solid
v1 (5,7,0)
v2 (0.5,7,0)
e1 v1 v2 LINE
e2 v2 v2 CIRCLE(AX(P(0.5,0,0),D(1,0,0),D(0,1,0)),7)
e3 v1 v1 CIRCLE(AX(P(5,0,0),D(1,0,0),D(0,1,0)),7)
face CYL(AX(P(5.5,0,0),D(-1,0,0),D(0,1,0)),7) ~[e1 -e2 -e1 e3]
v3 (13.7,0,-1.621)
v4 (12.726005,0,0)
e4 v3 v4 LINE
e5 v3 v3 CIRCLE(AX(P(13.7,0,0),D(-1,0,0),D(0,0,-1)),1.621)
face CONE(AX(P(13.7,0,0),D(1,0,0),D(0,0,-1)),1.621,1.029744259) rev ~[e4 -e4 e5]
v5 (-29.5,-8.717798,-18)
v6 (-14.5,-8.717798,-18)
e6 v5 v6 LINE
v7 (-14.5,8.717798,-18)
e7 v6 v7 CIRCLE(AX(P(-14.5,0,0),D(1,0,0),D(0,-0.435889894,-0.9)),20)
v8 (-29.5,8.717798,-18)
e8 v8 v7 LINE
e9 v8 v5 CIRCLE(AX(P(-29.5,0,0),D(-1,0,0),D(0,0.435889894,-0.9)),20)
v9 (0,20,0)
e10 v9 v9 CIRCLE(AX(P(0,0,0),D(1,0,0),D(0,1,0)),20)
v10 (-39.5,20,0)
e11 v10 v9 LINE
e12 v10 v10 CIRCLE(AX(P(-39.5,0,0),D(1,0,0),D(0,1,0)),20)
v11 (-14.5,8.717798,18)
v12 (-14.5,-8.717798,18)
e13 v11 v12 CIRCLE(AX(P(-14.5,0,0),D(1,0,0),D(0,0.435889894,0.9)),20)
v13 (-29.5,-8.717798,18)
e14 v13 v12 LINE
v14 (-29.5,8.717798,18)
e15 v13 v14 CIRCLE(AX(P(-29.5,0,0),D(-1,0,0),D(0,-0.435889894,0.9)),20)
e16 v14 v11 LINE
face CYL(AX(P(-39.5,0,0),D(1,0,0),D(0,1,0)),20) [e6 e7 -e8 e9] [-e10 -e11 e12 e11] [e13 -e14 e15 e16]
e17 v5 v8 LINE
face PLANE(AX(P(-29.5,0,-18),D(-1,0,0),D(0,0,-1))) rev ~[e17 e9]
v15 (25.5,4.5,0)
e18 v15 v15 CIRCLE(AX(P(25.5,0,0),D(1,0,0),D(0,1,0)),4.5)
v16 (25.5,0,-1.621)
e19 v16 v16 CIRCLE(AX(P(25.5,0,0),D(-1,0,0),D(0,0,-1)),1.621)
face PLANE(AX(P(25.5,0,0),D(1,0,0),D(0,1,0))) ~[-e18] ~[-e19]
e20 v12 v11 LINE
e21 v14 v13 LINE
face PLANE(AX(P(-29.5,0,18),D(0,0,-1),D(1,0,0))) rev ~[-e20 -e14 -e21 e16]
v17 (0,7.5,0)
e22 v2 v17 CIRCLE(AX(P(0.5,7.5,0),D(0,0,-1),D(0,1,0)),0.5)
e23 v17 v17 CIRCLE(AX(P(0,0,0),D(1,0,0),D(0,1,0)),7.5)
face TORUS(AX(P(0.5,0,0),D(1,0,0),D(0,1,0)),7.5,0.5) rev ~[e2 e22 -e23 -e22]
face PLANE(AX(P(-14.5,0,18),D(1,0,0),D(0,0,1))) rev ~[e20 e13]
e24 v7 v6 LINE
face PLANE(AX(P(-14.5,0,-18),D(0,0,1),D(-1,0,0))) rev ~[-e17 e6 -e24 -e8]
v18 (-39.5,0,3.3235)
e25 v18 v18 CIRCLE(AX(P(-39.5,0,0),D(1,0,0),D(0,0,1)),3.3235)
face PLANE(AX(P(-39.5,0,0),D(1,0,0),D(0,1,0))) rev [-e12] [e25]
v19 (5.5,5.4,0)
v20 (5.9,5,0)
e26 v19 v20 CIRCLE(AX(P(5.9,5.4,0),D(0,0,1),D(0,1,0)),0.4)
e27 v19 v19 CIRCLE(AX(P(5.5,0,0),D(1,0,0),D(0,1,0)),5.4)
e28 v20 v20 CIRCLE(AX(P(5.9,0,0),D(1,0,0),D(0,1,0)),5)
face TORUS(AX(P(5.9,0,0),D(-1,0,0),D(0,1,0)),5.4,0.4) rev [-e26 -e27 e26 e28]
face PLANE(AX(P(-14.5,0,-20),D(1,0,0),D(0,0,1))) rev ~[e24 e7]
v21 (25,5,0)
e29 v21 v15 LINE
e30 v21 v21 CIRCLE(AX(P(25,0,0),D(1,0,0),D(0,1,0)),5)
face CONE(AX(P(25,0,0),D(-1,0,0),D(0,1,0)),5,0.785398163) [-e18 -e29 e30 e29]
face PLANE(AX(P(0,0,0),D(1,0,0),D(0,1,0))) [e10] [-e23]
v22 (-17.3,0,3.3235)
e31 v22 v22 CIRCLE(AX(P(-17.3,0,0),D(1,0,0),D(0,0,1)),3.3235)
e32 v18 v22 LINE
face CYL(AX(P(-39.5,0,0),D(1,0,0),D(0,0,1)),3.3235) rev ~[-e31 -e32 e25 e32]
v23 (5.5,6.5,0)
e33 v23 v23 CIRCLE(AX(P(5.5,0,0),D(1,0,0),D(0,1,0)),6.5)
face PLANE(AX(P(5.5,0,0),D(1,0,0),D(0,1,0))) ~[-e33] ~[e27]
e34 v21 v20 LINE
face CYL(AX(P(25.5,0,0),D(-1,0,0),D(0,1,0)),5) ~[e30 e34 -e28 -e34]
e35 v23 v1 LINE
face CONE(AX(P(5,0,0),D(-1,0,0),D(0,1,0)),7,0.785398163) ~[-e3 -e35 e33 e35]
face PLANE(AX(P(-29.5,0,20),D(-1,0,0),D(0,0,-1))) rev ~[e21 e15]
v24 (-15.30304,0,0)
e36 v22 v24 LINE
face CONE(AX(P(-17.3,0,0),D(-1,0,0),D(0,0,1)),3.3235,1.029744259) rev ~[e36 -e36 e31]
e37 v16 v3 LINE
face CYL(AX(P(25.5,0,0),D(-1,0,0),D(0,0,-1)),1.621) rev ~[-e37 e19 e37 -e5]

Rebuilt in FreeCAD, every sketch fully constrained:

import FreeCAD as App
import Part
import Sketcher
from FreeCAD import Vector


def edges_at(feature, points):
    """Names of the edges that pass closest to the given points."""
    edges = feature.Shape.Edges
    near = lambda p: min(range(len(edges)), key=lambda i: edges[i].distToShape(Part.Vertex(*p))[0])
    return sorted({f"Edge{near(p) + 1}" for p in points})


def add_polygon(sketch, points):
    """Adds a closed chain of lines whose ends are joined by coincident constraints."""
    first, n = sketch.GeometryCount, len(points)
    for a, b in zip(points, points[1:] + points[:1]):
        sketch.addGeometry(Part.LineSegment(App.Vector(*a, 0), App.Vector(*b, 0)), False)
    for i in range(n):
        sketch.addConstraint(Sketcher.Constraint("Coincident", first + i, 2, first + (i + 1) % n, 1))

doc = App.newDocument("Part")
body = doc.addObject("PartDesign::Body", "Body")

# Sketch on XY plane
sketch1 = body.newObject("Sketcher::SketchObject", "Sketch")
sketch1.AttachmentSupport = (doc.getObject("XY_Plane"), [""])
sketch1.MapMode = "FlatFace"
add_polygon(sketch1, [(5.5, 7), (0, 7), (0, 20), (-39.5, 20), (-39.5, 0), (25.5, 0), (25.5, 5), (5.5, 5)])  # lines 0-7
sketch1.addConstraint(Sketcher.Constraint("Horizontal", 0))
sketch1.addConstraint(Sketcher.Constraint("Vertical", 1))
sketch1.addConstraint(Sketcher.Constraint("Horizontal", 2))
sketch1.addConstraint(Sketcher.Constraint("Vertical", 3))
sketch1.addConstraint(Sketcher.Constraint("Horizontal", 4))
sketch1.addConstraint(Sketcher.Constraint("Vertical", 5))
sketch1.addConstraint(Sketcher.Constraint("Horizontal", 6))
sketch1.addConstraint(Sketcher.Constraint("Vertical", 7))
sketch1.addConstraint(Sketcher.Constraint("PointOnObject", 0, 2, -2))
sketch1.addConstraint(Sketcher.Constraint("PointOnObject", 3, 2, -1))
sketch1.addConstraint(Sketcher.Constraint("Equal", 6, 3))
sketch1.addConstraint(Sketcher.Constraint("DistanceX", 6, 2, 6, 1, 20.0))
sketch1.addConstraint(Sketcher.Constraint("DistanceY", 5, 1, 5, 2, 5.0))
sketch1.addConstraint(Sketcher.Constraint("DistanceX", 0, 2, 0, 1, 5.5))
sketch1.addConstraint(Sketcher.Constraint("DistanceX", 2, 2, 2, 1, 39.5))
sketch1.addConstraint(Sketcher.Constraint("DistanceY", -1, 1, 0, 2, 7.0))
revolution = body.newObject("PartDesign::Revolution", "Revolution")
revolution.Profile = sketch1
revolution.ReferenceAxis = (sketch1, ["H_Axis"])
revolution.Angle = 360

# Sketch on YZ plane
sketch2 = body.newObject("Sketcher::SketchObject", "Sketch001")
sketch2.AttachmentSupport = (doc.getObject("YZ_Plane"), [""])
sketch2.MapMode = "FlatFace"
sketch2.AttachmentOffset = App.Placement(Vector(0, 0, 25.5), App.Rotation())
sketch2.addGeometry(Part.Circle(Vector(0, 0, 0), Vector(0, 0, 1), 1.6), False)
sketch2.addConstraint(Sketcher.Constraint("Coincident", 0, 3, -1, 1))
sketch2.addConstraint(Sketcher.Constraint("Diameter", 0, 3.242))
doc.recompute()
hole = body.newObject("PartDesign::Hole", "Hole")
hole.Profile = sketch2
hole.ThreadType = "None"
hole.Diameter = 3.242
hole.DepthType = "Dimension"
hole.Depth = 11.8
hole.DrillPoint = "Angled"
hole.DrillPointAngle = 118

# Sketch on YZ plane
sketch3 = body.newObject("Sketcher::SketchObject", "Sketch002")
sketch3.AttachmentSupport = (doc.getObject("YZ_Plane"), [""])
sketch3.MapMode = "FlatFace"
sketch3.AttachmentOffset = App.Placement(Vector(0, 0, -39.5), App.Rotation())
sketch3.addGeometry(Part.Circle(Vector(0, 0, 0), Vector(0, 0, 1), 3.3), False)
sketch3.addConstraint(Sketcher.Constraint("Coincident", 0, 3, -1, 1))
sketch3.addConstraint(Sketcher.Constraint("Diameter", 0, 6.647))
doc.recompute()
hole2 = body.newObject("PartDesign::Hole", "Hole001")
hole2.Profile = sketch3
hole2.ThreadType = "None"
hole2.Diameter = 6.647
hole2.DepthType = "Dimension"
hole2.Depth = 22.2
hole2.DrillPoint = "Angled"
hole2.DrillPointAngle = 118
hole2.Reversed = True

# Sketch on XZ plane
sketch4 = body.newObject("Sketcher::SketchObject", "Sketch003")
sketch4.AttachmentSupport = (doc.getObject("XZ_Plane"), [""])
sketch4.MapMode = "FlatFace"
add_polygon(sketch4, [(-14.5, -20), (-29.5, -20), (-29.5, -18), (-14.5, -18)])  # lines 0-3
add_polygon(sketch4, [(-29.5, 20), (-14.5, 20), (-14.5, 18), (-29.5, 18)])  # lines 4-7
sketch4.addConstraint(Sketcher.Constraint("Horizontal", 0))
sketch4.addConstraint(Sketcher.Constraint("Vertical", 1))
sketch4.addConstraint(Sketcher.Constraint("Horizontal", 2))
sketch4.addConstraint(Sketcher.Constraint("Vertical", 3))
sketch4.addConstraint(Sketcher.Constraint("Horizontal", 4))
sketch4.addConstraint(Sketcher.Constraint("Vertical", 5))
sketch4.addConstraint(Sketcher.Constraint("Horizontal", 6))
sketch4.addConstraint(Sketcher.Constraint("Vertical", 7))
sketch4.addConstraint(Sketcher.Constraint("Symmetric", 3, 2, 4, 2, -1))
sketch4.addConstraint(Sketcher.Constraint("Symmetric", 1, 2, 6, 2, -1))
sketch4.addConstraint(Sketcher.Constraint("DistanceX", 0, 2, 0, 1, 15.0))
sketch4.addConstraint(Sketcher.Constraint("DistanceY", 1, 1, 1, 2, 2.0))
sketch4.addConstraint(Sketcher.Constraint("DistanceY", 2, 2, 5, 2, 36.0))
sketch4.addConstraint(Sketcher.Constraint("DistanceX", 0, 2, -1, 1, 29.5))
pocket1 = body.newObject("PartDesign::Pocket", "Pocket")
pocket1.Profile = sketch4
pocket1.Type = "ThroughAll"
pocket1.Midplane = True
doc.recompute()

fillet = body.newObject("PartDesign::Fillet", "Fillet")
fillet.Base = (pocket1, edges_at(pocket1, [(0, -7, 0)]))
fillet.Radius = 0.5
doc.recompute()

fillet2 = body.newObject("PartDesign::Fillet", "Fillet001")
fillet2.Base = (fillet, edges_at(fillet, [(5.5, -5, 0)]))
fillet2.Radius = 0.4
doc.recompute()

chamfer = body.newObject("PartDesign::Chamfer", "Chamfer")
chamfer.Base = (fillet2, edges_at(fillet2, [(25.5, -5, 0)]))
chamfer.Size = 0.5
doc.recompute()

chamfer2 = body.newObject("PartDesign::Chamfer", "Chamfer001")
chamfer2.Base = (chamfer, edges_at(chamfer, [(5.5, -7, 0)]))
chamfer2.Size = 0.5

doc.recompute()
